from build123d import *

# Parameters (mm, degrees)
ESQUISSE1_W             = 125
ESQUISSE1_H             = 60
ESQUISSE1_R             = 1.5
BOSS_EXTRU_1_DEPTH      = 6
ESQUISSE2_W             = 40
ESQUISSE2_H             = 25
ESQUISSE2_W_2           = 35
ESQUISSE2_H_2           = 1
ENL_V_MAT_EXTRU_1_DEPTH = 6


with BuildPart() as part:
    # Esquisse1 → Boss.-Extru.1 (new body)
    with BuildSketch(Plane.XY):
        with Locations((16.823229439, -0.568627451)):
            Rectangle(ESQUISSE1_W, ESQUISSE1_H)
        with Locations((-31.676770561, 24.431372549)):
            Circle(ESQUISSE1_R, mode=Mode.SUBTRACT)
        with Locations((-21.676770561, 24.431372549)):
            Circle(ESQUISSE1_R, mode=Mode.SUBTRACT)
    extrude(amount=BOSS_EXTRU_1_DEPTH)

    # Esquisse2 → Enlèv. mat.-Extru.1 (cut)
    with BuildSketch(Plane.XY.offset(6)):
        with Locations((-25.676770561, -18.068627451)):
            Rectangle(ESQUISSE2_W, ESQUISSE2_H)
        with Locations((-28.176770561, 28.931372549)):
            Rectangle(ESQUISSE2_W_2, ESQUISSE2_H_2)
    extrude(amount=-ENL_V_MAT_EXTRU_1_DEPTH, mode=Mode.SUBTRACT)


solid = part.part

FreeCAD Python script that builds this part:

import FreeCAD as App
import Part
import Sketcher

doc = App.newDocument("Part")
body = doc.addObject("PartDesign::Body", "Body")

sketch1 = body.newObject("Sketcher::SketchObject", "Sketch")
sketch1.AttachmentSupport = (doc.getObject("XY_Plane"), [""])
sketch1.MapMode = "FlatFace"
sketch1.addGeometry([
    Part.LineSegment(App.Vector(-45.676771, 29.431373, 0), App.Vector(-45.676771, -30.568627, 0)),
    Part.LineSegment(App.Vector(-45.676771, -30.568627, 0), App.Vector(79.323229, -30.568627, 0)),
    Part.LineSegment(App.Vector(79.323229, -30.568627, 0), App.Vector(79.323229, 29.431373, 0)),
    Part.LineSegment(App.Vector(79.323229, 29.431373, 0), App.Vector(-45.676771, 29.431373, 0)),
    Part.Circle(App.Vector(-31.676771, 24.431373, 0), App.Vector(0, 0, 1), 1.5),
    Part.Circle(App.Vector(-21.676771, 24.431373, 0), App.Vector(0, 0, 1), 1.5),
], False)
sketch1.addConstraint([
    Sketcher.Constraint("Coincident", 0, 2, 1, 1),
    Sketcher.Constraint("Coincident", 1, 2, 2, 1),
    Sketcher.Constraint("Coincident", 2, 2, 3, 1),
    Sketcher.Constraint("Coincident", 3, 2, 0, 1),
    Sketcher.Constraint("Vertical", 0),
    Sketcher.Constraint("Horizontal", 1),
    Sketcher.Constraint("Vertical", 2),
    Sketcher.Constraint("Horizontal", 3),
    Sketcher.Constraint("Equal", 4, 5),
    Sketcher.Constraint("Horizontal", 4, 3, 5, 3),
    Sketcher.Constraint("Diameter", 4, 3.0),
    Sketcher.Constraint("DistanceX", 1, 1, 1, 2, 125.0),
    Sketcher.Constraint("DistanceY", 0, 2, 0, 1, 60.0),
    Sketcher.Constraint("DistanceX", 4, 3, 5, 3, 10.0),
    Sketcher.Constraint("DistanceX", 0, 2, 4, 3, 14.0),
    Sketcher.Constraint("DistanceY", 0, 2, 4, 3, 55.0),
    Sketcher.Constraint("DistanceX", 4, 3, -1, 1, 31.676771),
    Sketcher.Constraint("DistanceY", -1, 1, 4, 3, 24.431373),
])
pad1 = body.newObject("PartDesign::Pad", "Pad")
pad1.Profile = sketch1
pad1.Length = 6

sketch2 = body.newObject("Sketcher::SketchObject", "Sketch001")
sketch2.AttachmentSupport = (doc.getObject("XY_Plane"), [""])
sketch2.MapMode = "FlatFace"
sketch2.AttachmentOffset = App.Placement(App.Vector(0, 0, 6), App.Rotation())
sketch2.addGeometry([
    Part.LineSegment(App.Vector(-45.676771, -5.568627, 0), App.Vector(-45.676771, -30.568627, 0)),
    Part.LineSegment(App.Vector(-45.676771, -30.568627, 0), App.Vector(-5.676771, -30.568627, 0)),
    Part.LineSegment(App.Vector(-5.676771, -30.568627, 0), App.Vector(-5.676771, -5.568627, 0)),
    Part.LineSegment(App.Vector(-5.676771, -5.568627, 0), App.Vector(-45.676771, -5.568627, 0)),
    Part.LineSegment(App.Vector(-45.676771, 29.431373, 0), App.Vector(-45.676771, 28.431373, 0)),
    Part.LineSegment(App.Vector(-45.676771, 28.431373, 0), App.Vector(-10.676771, 28.431373, 0)),
    Part.LineSegment(App.Vector(-10.676771, 28.431373, 0), App.Vector(-10.676771, 29.431373, 0)),
    Part.LineSegment(App.Vector(-10.676771, 29.431373, 0), App.Vector(-45.676771, 29.431373, 0)),
], False)
sketch2.addConstraint([
    Sketcher.Constraint("Coincident", 0, 2, 1, 1),
    Sketcher.Constraint("Coincident", 1, 2, 2, 1),
    Sketcher.Constraint("Coincident", 2, 2, 3, 1),
    Sketcher.Constraint("Coincident", 3, 2, 0, 1),
    Sketcher.Constraint("Coincident", 4, 2, 5, 1),
    Sketcher.Constraint("Coincident", 5, 2, 6, 1),
    Sketcher.Constraint("Coincident", 6, 2, 7, 1),
    Sketcher.Constraint("Coincident", 7, 2, 4, 1),
    Sketcher.Constraint("Vertical", 0),
    Sketcher.Constraint("Horizontal", 1),
    Sketcher.Constraint("Vertical", 2),
    Sketcher.Constraint("Horizontal", 3),
    Sketcher.Constraint("Vertical", 4),
    Sketcher.Constraint("Horizontal", 5),
    Sketcher.Constraint("Vertical", 6),
    Sketcher.Constraint("Horizontal", 7),
    Sketcher.Constraint("Vertical", 3, 2, 4, 2),
    Sketcher.Constraint("DistanceX", 1, 1, 1, 2, 40.0),
    Sketcher.Constraint("DistanceX", 5, 1, 5, 2, 35.0),
    Sketcher.Constraint("DistanceY", 0, 2, 0, 1, 25.0),
    Sketcher.Constraint("DistanceY", 4, 2, 4, 1, 1.0),
    Sketcher.Constraint("DistanceY", 3, 2, 4, 2, 34.0),
    Sketcher.Constraint("DistanceX", 0, 2, -1, 1, 45.676771),
    Sketcher.Constraint("DistanceY", 0, 2, -1, 1, 30.568627),
])
pocket1 = body.newObject("PartDesign::Pocket", "Pocket")
pocket1.Profile = sketch2
pocket1.Length = 6

doc.recompute()
